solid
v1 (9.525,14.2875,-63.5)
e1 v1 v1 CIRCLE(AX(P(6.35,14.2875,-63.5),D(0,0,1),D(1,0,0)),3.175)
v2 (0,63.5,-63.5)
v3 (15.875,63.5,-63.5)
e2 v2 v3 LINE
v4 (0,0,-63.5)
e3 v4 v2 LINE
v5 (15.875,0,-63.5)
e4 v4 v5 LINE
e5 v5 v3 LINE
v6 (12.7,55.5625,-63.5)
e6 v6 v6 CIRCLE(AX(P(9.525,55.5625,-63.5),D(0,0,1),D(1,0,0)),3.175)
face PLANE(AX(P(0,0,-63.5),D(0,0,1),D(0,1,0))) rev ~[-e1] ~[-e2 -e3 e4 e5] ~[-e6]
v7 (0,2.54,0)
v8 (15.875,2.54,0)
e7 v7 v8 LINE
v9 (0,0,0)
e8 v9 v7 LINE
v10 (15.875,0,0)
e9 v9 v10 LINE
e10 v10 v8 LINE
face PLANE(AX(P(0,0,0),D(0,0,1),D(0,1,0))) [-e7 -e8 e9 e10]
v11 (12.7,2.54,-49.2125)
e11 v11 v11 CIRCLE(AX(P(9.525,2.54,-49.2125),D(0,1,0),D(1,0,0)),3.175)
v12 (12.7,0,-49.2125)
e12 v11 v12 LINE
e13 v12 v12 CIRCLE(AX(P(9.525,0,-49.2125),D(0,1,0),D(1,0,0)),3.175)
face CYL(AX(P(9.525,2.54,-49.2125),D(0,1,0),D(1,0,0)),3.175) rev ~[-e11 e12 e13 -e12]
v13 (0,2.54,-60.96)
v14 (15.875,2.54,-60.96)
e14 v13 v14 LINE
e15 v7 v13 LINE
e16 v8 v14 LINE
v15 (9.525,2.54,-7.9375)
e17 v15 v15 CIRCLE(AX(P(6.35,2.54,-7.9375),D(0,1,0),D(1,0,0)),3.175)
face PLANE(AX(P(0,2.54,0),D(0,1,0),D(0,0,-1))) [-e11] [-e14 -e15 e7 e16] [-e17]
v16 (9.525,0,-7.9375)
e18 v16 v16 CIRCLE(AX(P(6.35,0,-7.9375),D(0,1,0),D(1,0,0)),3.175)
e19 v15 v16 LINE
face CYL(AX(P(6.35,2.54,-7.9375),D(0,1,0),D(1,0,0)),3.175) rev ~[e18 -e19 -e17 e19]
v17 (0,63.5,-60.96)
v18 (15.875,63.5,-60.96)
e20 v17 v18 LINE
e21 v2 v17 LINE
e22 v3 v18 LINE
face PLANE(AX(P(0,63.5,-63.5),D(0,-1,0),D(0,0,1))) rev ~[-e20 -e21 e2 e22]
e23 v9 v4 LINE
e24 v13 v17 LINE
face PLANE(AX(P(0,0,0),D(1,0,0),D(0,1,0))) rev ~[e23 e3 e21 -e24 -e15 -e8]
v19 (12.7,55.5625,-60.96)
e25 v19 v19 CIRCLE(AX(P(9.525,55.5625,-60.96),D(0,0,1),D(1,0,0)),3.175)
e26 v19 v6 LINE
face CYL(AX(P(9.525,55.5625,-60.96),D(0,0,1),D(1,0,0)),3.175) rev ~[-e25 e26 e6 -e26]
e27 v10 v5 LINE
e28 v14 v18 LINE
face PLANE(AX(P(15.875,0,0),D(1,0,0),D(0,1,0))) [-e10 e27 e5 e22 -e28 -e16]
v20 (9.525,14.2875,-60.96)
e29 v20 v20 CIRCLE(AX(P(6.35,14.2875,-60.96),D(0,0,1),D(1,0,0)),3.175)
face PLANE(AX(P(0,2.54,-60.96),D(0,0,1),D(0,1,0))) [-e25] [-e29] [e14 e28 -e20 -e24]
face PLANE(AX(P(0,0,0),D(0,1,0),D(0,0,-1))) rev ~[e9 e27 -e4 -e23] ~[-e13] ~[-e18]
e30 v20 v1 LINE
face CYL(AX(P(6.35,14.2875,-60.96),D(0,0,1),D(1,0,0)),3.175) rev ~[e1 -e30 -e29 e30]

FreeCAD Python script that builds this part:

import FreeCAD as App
import Part
import Sketcher
from FreeCAD import Vector
Q = App.Units.Quantity

doc = App.newDocument("Part")
body = doc.addObject("PartDesign::Body", "Body")

# Sketch on YZ plane
sketch1 = doc.addObject("Sketcher::SketchObject", "Sketch")
body.addObject(sketch1)
sketch1.AttachmentSupport = (doc.YZ_Plane, [""])
sketch1.MapMode = "FlatFace"
sketch1.addGeometry([
    Part.LineSegment(Vector(2.5, 0, 0), Vector(0, 0, 0)),  # 0
    Part.LineSegment(Vector(0, 0, 0), Vector(0, -63.5, 0)),  # 1
    Part.LineSegment(Vector(0, -63.5, 0), Vector(63.5, -63.5, 0)),  # 2
    Part.LineSegment(Vector(63.5, -63.5, 0), Vector(63.5, -61, 0)),  # 3
    Part.LineSegment(Vector(63.5, -61, 0), Vector(2.5, -61, 0)),  # 4
    Part.LineSegment(Vector(2.5, -61, 0), Vector(2.5, 0, 0)),  # 5
], False)
sketch1.addConstraint([
    Sketcher.Constraint("Coincident", 0, 2, 1, 1),
    Sketcher.Constraint("Coincident", 1, 2, 2, 1),
    Sketcher.Constraint("Coincident", 2, 2, 3, 1),
    Sketcher.Constraint("Coincident", 3, 2, 4, 1),
    Sketcher.Constraint("Coincident", 4, 2, 5, 1),
    Sketcher.Constraint("Coincident", 5, 2, 0, 1),
    Sketcher.Constraint("Horizontal", 0),
    Sketcher.Constraint("Vertical", 1),
    Sketcher.Constraint("Horizontal", 2),
    Sketcher.Constraint("Vertical", 3),
    Sketcher.Constraint("Horizontal", 4),
    Sketcher.Constraint("Vertical", 5),
    Sketcher.Constraint("Coincident", 0, 2, -1, 1),
    Sketcher.Constraint("Equal", 2, 1),
    Sketcher.Constraint("Equal", 0, 3),
    Sketcher.Constraint("DistanceX", 0, 2, 0, 1, Q("0.1 in")),
    Sketcher.Constraint("DistanceX", 2, 1, 2, 2, Q("2.5 in")),
])
pad1 = doc.addObject("PartDesign::Pad", "Pad")
body.addObject(pad1)
pad1.Profile = sketch1
pad1.Length = Q("0.625 in")

# Sketch on XZ plane
sketch2 = doc.addObject("Sketcher::SketchObject", "Sketch001")
body.addObject(sketch2)
sketch2.AttachmentSupport = (doc.XZ_Plane, [""])
sketch2.MapMode = "FlatFace"
sketch2.AttachmentOffset = App.Placement(Vector(0, 0, -0.1 * 25.4), App.Rotation())
sketch2.addGeometry(Part.Circle(Vector(9.5, -49.2, 0), Vector(0, 0, 1), 3.2), False)
sketch2.addConstraint([
    Sketcher.Constraint("Diameter", 0, Q("0.25 in")),
    Sketcher.Constraint("DistanceX", -1, 1, 0, 3, Q("0.375 in")),
    Sketcher.Constraint("DistanceY", 0, 3, -1, 1, Q("1.9375 in")),
])
pocket1 = doc.addObject("PartDesign::Pocket", "Pocket")
body.addObject(pocket1)
pocket1.Profile = sketch2
pocket1.Type = "ThroughAll"
pocket1.Reversed = True

# Sketch on XZ plane
sketch3 = doc.addObject("Sketcher::SketchObject", "Sketch002")
body.addObject(sketch3)
sketch3.AttachmentSupport = (doc.XZ_Plane, [""])
sketch3.MapMode = "FlatFace"
sketch3.AttachmentOffset = App.Placement(Vector(0, 0, -0.1 * 25.4), App.Rotation())
sketch3.addGeometry(Part.Circle(Vector(6.3, -7.9, 0), Vector(0, 0, 1), 3.2), False)
sketch3.addConstraint([
    Sketcher.Constraint("Diameter", 0, Q("0.25 in")),
    Sketcher.Constraint("DistanceX", -1, 1, 0, 3, Q("0.25 in")),
    Sketcher.Constraint("DistanceY", 0, 3, -1, 1, Q("0.3125 in")),
])
pocket2 = doc.addObject("PartDesign::Pocket", "Pocket001")
body.addObject(pocket2)
pocket2.Profile = sketch3
pocket2.Type = "ThroughAll"
pocket2.Reversed = True

# Sketch on XY plane
sketch4 = doc.addObject("Sketcher::SketchObject", "Sketch003")
body.addObject(sketch4)
sketch4.AttachmentSupport = (doc.XY_Plane, [""])
sketch4.MapMode = "FlatFace"
sketch4.AttachmentOffset = App.Placement(Vector(0, 0, -2.4 * 25.4), App.Rotation())
sketch4.addGeometry(Part.Circle(Vector(6.3, 14.3, 0), Vector(0, 0, 1), 3.2), False)
sketch4.addConstraint([
    Sketcher.Constraint("Diameter", 0, Q("0.25 in")),
    Sketcher.Constraint("DistanceX", -1, 1, 0, 3, Q("0.25 in")),
    Sketcher.Constraint("DistanceY", -1, 1, 0, 3, Q("0.5625 in")),
])
pocket3 = doc.addObject("PartDesign::Pocket", "Pocket002")
body.addObject(pocket3)
pocket3.Profile = sketch4
pocket3.Type = "ThroughAll"

# Sketch on XY plane
sketch5 = doc.addObject("Sketcher::SketchObject", "Sketch004")
body.addObject(sketch5)
sketch5.AttachmentSupport = (doc.XY_Plane, [""])
sketch5.MapMode = "FlatFace"
sketch5.AttachmentOffset = App.Placement(Vector(0, 0, -2.4 * 25.4), App.Rotation())
sketch5.addGeometry(Part.Circle(Vector(9.5, 55.6, 0), Vector(0, 0, 1), 3.2), False)
sketch5.addConstraint([
    Sketcher.Constraint("Diameter", 0, Q("0.25 in")),
    Sketcher.Constraint("DistanceX", -1, 1, 0, 3, Q("0.375 in")),
    Sketcher.Constraint("DistanceY", -1, 1, 0, 3, Q("2.1875 in")),
])
pocket4 = doc.addObject("PartDesign::Pocket", "Pocket003")
body.addObject(pocket4)
pocket4.Profile = sketch5
pocket4.Type = "ThroughAll"

doc.recompute()
